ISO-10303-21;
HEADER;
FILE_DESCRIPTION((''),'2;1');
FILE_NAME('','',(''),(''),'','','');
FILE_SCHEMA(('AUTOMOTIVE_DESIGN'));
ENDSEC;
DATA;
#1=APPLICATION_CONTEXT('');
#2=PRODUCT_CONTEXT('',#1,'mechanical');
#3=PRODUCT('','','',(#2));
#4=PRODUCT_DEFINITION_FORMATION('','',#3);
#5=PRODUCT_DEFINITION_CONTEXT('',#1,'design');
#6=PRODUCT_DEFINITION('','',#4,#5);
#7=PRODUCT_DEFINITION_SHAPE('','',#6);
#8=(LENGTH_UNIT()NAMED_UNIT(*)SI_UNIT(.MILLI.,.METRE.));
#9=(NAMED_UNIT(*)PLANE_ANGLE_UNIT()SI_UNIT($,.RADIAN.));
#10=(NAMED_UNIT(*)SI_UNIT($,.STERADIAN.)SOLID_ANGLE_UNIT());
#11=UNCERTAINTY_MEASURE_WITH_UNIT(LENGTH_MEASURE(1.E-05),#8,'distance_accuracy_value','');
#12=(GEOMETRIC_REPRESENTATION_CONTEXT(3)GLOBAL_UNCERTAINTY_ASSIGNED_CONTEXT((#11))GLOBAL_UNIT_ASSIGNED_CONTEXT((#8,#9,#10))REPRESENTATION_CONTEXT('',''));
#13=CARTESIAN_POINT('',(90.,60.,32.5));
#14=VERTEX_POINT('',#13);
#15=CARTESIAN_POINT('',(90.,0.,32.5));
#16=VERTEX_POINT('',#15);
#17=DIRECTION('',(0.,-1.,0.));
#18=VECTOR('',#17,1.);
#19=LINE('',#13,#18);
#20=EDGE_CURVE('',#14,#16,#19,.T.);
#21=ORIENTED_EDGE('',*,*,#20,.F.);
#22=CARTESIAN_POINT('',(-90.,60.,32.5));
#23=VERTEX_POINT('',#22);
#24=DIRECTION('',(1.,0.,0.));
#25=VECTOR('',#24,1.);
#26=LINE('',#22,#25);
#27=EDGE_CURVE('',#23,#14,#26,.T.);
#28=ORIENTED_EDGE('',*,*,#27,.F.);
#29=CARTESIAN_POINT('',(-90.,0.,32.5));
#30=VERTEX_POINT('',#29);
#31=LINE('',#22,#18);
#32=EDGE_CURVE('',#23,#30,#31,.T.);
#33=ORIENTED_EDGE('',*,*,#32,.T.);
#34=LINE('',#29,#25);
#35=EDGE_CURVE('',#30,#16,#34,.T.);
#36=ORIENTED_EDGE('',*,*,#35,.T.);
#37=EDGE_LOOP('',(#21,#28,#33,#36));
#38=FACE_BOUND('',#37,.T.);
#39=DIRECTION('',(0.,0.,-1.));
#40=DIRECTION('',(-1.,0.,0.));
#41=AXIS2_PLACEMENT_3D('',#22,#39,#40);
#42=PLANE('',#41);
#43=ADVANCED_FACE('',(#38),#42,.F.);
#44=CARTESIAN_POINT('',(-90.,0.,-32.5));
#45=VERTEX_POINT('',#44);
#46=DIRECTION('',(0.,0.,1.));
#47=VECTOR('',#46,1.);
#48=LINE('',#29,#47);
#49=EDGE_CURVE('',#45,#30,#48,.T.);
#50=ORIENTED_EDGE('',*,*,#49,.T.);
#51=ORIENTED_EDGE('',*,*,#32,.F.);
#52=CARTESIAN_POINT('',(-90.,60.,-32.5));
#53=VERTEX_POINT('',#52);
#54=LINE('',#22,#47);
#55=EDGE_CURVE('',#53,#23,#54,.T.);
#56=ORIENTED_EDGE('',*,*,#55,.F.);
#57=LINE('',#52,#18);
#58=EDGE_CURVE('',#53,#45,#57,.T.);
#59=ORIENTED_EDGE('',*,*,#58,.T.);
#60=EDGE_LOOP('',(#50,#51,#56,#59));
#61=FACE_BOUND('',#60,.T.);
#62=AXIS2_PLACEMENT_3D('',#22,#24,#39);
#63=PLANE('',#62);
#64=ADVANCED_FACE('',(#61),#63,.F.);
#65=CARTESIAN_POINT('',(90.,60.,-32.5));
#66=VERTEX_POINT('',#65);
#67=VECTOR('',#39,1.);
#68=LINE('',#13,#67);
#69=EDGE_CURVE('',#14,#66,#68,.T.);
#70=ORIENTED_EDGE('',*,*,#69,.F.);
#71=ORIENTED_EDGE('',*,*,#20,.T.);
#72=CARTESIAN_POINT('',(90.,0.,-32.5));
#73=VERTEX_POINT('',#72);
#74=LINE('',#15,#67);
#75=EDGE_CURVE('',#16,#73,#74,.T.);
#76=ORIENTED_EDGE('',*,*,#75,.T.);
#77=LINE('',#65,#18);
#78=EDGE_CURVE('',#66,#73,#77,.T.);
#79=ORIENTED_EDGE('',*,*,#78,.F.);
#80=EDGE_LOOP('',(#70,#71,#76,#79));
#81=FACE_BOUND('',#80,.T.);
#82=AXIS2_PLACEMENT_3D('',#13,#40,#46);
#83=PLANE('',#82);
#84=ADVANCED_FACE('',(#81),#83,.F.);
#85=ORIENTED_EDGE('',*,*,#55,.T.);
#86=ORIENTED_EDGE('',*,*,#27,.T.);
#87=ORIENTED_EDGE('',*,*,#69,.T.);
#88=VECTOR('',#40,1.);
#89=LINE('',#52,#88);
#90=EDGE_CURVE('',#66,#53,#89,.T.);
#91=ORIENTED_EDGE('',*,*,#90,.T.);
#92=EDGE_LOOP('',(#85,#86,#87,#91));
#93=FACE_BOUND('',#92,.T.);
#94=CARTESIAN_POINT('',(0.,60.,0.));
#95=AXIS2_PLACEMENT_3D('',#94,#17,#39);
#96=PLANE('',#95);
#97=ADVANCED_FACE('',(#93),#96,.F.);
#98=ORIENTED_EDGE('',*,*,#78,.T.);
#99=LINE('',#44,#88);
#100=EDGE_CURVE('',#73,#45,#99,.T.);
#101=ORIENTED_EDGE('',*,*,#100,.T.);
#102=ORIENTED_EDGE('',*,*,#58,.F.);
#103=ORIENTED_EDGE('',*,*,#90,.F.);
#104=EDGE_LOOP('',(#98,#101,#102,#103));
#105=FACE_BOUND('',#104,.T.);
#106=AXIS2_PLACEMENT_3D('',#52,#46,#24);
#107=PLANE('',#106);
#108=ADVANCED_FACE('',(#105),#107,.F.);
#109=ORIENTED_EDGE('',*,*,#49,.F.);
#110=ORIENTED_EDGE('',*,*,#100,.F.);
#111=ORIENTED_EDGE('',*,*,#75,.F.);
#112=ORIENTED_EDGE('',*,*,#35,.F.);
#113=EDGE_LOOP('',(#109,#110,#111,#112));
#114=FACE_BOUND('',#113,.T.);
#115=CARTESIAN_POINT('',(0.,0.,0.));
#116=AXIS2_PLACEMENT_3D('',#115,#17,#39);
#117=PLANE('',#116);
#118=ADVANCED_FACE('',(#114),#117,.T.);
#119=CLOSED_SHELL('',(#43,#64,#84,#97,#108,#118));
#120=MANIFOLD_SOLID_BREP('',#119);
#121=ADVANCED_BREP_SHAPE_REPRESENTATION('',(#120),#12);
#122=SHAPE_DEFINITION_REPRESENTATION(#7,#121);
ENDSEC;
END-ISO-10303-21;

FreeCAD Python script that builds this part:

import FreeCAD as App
import Part
import Sketcher

doc = App.newDocument("Part")
body = doc.addObject("PartDesign::Body", "Body")

sketch1 = body.newObject("Sketcher::SketchObject", "Sketch")
sketch1.AttachmentSupport = (doc.getObject("XZ_Plane"), [""])
sketch1.MapMode = "FlatFace"
sketch1.addGeometry([
    Part.LineSegment(App.Vector(-90, -32, 0), App.Vector(-90, 32, 0)),
    Part.LineSegment(App.Vector(-90, 32, 0), App.Vector(90, 32, 0)),
    Part.LineSegment(App.Vector(90, 32, 0), App.Vector(90, -32, 0)),
    Part.LineSegment(App.Vector(90, -32, 0), App.Vector(-90, -32, 0)),
], False)
sketch1.addConstraint([
    Sketcher.Constraint("Coincident", 0, 2, 1, 1),
    Sketcher.Constraint("Coincident", 1, 2, 2, 1),
    Sketcher.Constraint("Coincident", 2, 2, 3, 1),
    Sketcher.Constraint("Coincident", 3, 2, 0, 1),
    Sketcher.Constraint("Vertical", 0),
    Sketcher.Constraint("Horizontal", 1),
    Sketcher.Constraint("Vertical", 2),
    Sketcher.Constraint("Horizontal", 3),
    Sketcher.Constraint("Symmetric", 0, 2, 2, 2, -1, 1),
    Sketcher.Constraint("DistanceX", 1, 1, 1, 2, 180.0),
    Sketcher.Constraint("DistanceY", 0, 1, 0, 2, 65.0),
])
pad1 = body.newObject("PartDesign::Pad", "Pad")
pad1.Profile = sketch1
pad1.Length = 60
pad1.Reversed = True

doc.recompute()
